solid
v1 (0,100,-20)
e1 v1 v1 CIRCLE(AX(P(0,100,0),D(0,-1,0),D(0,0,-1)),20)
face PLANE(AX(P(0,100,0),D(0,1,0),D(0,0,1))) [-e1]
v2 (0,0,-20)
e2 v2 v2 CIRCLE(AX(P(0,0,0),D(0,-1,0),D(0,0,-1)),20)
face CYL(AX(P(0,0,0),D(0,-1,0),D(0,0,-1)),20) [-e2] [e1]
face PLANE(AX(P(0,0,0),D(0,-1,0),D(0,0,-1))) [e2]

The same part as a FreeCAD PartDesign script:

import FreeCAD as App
import Part
import Sketcher
from FreeCAD import Vector

doc = App.newDocument("Part")
params = doc.addObject("Spreadsheet::Sheet", "Params")
for row, (alias, value) in enumerate([
    ("sketch1_width", "20 mm"),
    ("sketch1_height", "100 mm"),
    ("revolution_angle", "360 deg"),
], start=1):
    params.set(f"A{row}", alias)
    params.set(f"B{row}", "=" + value)
    params.setAlias(f"B{row}", alias)

body = doc.addObject("PartDesign::Body", "Body")

# Sketch on XY plane
sketch1 = body.newObject("Sketcher::SketchObject", "Sketch")
sketch1.AttachmentSupport = (doc.getObject("XY_Plane"), [""])
sketch1.MapMode = "FlatFace"
sketch1.addGeometry([
    Part.LineSegment(Vector(0, 100, 0), Vector(0, 0, 0)),
    Part.LineSegment(Vector(0, 0, 0), Vector(20, 0, 0)),
    Part.LineSegment(Vector(20, 0, 0), Vector(20, 100, 0)),
    Part.LineSegment(Vector(20, 100, 0), Vector(0, 100, 0)),
], False)
sketch1.addConstraint([
    Sketcher.Constraint("Coincident", 0, 2, 1, 1),
    Sketcher.Constraint("Coincident", 1, 2, 2, 1),
    Sketcher.Constraint("Coincident", 2, 2, 3, 1),
    Sketcher.Constraint("Coincident", 3, 2, 0, 1),
    Sketcher.Constraint("Vertical", 0),
    Sketcher.Constraint("Horizontal", 1),
    Sketcher.Constraint("Vertical", 2),
    Sketcher.Constraint("Horizontal", 3),
    Sketcher.Constraint("Coincident", 0, 2, -1, 1),
    Sketcher.Constraint("DistanceX", 1, 1, 1, 2, 20.0),
    Sketcher.Constraint("DistanceY", 0, 2, 0, 1, 100.0),
])
sketch1.setExpression("Constraints[9]", "Params.sketch1_width")
sketch1.setExpression("Constraints[10]", "Params.sketch1_height")
revolution = body.newObject("PartDesign::Revolution", "Revolution")
revolution.Profile = sketch1
revolution.ReferenceAxis = (sketch1, ["V_Axis"])
revolution.setExpression("Angle", "Params.revolution_angle")

doc.recompute()
